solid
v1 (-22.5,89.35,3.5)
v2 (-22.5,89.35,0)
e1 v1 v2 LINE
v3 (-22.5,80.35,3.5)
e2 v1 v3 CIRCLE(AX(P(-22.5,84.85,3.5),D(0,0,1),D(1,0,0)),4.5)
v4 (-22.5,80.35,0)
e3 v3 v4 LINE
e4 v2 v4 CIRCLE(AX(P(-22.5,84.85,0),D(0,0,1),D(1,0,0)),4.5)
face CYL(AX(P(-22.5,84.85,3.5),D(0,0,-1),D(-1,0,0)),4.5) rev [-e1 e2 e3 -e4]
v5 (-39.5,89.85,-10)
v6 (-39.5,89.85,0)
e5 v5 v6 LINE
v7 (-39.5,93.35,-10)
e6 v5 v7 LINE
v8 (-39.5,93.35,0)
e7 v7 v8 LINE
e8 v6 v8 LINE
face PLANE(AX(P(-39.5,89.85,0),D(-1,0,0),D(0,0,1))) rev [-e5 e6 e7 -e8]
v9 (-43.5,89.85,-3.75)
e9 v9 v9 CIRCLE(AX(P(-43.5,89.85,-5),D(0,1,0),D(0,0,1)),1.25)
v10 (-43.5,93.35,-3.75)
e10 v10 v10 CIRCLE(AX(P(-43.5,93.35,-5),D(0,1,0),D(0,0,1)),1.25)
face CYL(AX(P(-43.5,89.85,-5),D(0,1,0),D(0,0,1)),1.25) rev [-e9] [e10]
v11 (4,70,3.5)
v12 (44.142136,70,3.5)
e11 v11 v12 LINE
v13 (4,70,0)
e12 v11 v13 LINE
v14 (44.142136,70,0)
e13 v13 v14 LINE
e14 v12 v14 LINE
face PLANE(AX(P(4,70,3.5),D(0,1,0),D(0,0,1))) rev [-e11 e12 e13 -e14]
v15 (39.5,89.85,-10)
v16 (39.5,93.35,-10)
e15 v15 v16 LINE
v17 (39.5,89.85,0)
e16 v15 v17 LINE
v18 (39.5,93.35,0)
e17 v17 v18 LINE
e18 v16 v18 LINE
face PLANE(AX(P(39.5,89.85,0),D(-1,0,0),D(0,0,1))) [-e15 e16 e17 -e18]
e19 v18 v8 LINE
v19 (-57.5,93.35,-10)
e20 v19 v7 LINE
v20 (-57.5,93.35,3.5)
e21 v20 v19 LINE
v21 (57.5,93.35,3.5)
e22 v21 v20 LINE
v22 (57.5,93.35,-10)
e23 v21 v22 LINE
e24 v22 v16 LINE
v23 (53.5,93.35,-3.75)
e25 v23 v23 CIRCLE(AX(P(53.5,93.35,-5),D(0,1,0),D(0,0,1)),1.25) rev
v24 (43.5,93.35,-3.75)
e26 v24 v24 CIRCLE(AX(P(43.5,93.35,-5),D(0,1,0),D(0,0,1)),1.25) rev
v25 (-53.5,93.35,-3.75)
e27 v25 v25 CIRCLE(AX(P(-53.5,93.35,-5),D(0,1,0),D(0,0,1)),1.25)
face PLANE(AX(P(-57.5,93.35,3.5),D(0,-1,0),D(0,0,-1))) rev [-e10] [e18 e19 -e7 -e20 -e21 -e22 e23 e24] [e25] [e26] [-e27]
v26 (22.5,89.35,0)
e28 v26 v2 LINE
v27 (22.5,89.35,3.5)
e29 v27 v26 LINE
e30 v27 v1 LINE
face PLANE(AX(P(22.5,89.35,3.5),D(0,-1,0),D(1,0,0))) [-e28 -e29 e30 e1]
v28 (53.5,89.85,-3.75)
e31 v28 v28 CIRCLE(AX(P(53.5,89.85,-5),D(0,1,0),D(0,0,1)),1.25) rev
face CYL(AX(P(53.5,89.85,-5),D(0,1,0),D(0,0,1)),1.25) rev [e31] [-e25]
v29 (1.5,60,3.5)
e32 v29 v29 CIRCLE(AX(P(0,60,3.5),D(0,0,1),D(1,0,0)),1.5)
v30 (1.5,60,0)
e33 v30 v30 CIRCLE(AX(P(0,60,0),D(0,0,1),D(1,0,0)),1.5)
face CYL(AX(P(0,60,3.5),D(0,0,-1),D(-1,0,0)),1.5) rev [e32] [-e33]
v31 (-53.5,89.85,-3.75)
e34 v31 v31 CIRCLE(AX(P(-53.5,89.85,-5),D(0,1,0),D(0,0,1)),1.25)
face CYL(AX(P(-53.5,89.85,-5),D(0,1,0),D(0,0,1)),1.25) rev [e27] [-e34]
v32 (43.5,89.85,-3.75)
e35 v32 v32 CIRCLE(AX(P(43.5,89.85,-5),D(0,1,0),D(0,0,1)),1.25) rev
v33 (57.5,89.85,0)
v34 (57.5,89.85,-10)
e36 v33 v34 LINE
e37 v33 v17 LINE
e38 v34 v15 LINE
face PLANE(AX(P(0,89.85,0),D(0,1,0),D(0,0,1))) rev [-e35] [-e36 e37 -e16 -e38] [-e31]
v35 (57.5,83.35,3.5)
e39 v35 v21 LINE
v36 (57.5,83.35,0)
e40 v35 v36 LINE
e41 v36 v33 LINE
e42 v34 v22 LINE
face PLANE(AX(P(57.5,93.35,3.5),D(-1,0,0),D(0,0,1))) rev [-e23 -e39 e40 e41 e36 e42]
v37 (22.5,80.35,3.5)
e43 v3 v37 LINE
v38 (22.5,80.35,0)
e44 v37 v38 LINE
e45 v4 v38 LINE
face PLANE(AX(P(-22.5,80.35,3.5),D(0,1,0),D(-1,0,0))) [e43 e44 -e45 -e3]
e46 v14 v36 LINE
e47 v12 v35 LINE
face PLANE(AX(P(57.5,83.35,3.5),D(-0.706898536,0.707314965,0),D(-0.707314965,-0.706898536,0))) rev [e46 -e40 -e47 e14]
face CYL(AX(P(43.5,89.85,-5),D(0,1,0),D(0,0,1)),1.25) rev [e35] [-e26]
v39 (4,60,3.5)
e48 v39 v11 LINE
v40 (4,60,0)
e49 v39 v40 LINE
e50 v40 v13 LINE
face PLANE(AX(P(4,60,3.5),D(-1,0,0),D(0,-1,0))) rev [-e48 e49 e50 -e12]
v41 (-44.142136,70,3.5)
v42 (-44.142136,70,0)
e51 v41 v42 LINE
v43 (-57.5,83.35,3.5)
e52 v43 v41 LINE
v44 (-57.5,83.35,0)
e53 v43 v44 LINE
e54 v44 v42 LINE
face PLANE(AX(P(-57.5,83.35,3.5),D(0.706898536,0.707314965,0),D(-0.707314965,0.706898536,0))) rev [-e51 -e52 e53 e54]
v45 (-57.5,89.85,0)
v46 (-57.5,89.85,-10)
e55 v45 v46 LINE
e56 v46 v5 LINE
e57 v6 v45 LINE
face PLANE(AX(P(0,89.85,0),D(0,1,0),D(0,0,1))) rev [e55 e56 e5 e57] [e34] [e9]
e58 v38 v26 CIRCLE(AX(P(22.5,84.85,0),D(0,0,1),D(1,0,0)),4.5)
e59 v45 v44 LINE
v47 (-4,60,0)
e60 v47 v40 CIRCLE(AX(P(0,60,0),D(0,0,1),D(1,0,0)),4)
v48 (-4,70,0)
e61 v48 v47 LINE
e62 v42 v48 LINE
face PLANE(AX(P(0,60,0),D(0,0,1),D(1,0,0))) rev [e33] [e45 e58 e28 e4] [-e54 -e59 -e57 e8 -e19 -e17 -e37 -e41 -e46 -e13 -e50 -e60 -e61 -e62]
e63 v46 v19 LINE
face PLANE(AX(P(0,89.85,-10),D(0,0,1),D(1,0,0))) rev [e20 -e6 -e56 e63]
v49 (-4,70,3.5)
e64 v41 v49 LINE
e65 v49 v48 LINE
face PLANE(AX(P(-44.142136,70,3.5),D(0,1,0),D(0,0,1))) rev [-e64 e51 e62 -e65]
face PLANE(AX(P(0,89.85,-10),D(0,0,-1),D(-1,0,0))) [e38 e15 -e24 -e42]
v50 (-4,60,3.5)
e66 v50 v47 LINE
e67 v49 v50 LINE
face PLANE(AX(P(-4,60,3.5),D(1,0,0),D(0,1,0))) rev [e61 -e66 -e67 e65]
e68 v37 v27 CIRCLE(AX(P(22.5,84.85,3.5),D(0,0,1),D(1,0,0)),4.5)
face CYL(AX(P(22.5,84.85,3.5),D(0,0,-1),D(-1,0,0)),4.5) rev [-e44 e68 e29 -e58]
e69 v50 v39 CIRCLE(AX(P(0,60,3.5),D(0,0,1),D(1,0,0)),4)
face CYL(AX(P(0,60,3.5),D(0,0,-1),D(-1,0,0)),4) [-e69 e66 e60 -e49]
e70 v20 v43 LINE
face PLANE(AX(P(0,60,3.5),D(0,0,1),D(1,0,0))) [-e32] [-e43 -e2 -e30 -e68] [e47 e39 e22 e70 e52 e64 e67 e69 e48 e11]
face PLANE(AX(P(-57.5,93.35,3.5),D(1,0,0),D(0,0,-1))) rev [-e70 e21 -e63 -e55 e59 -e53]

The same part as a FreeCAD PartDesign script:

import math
import FreeCAD as App
import Part
import Sketcher

V = App.Vector
Q = App.Units.Quantity

doc = App.newDocument("Part")
body = doc.addObject("PartDesign::Body", "Body")

# Sketch on XY plane
sketch1 = doc.addObject("Sketcher::SketchObject", "Sketch")
body.addObject(sketch1)
sketch1.AttachmentSupport = (doc.XY_Plane, [""])
sketch1.MapMode = "FlatFace"
sketch1.addGeometry(Part.LineSegment(V(-4, 70, 0), V(-4, 60, 0)), False)
sketch1.addGeometry(Part.ArcOfCircle(Part.Circle(V(0, 60, 0), V(0, 0, 1), 4), math.radians(180), math.radians(360)), False)
sketch1.addGeometry(Part.LineSegment(V(4, 60, 0), V(4, 70, 0)), False)
sketch1.addGeometry(Part.LineSegment(V(4, 70, 0), V(44.1, 70, 0)), False)
sketch1.addGeometry(Part.LineSegment(V(44.1, 70, 0), V(57.5, 83.3, 0)), False)
sketch1.addGeometry(Part.LineSegment(V(57.5, 83.3, 0), V(57.5, 93.3, 0)), False)
sketch1.addGeometry(Part.LineSegment(V(57.5, 93.3, 0), V(-57.5, 93.3, 0)), False)
sketch1.addGeometry(Part.LineSegment(V(-57.5, 93.3, 0), V(-57.5, 83.3, 0)), False)
sketch1.addGeometry(Part.LineSegment(V(-57.5, 83.3, 0), V(-44.1, 70, 0)), False)
sketch1.addGeometry(Part.LineSegment(V(-44.1, 70, 0), V(-4, 70, 0)), False)
sketch1.addGeometry(Part.Circle(V(0, 60, 0), V(0, 0, 1), 1.5), False)
sketch1.addGeometry(Part.ArcOfCircle(Part.Circle(V(22.5, 84.8, 0), V(0, 0, 1), 4.5), math.radians(-90), math.radians(90)), False)
sketch1.addGeometry(Part.LineSegment(V(22.5, 80.3, 0), V(-22.5, 80.3, 0)), False)
sketch1.addGeometry(Part.ArcOfCircle(Part.Circle(V(-22.5, 84.8, 0), V(0, 0, 1), 4.5), math.radians(90), math.radians(270)), False)
sketch1.addGeometry(Part.LineSegment(V(-22.5, 89.3, 0), V(22.5, 89.3, 0)), False)
sketch1.addConstraint(Sketcher.Constraint("Tangent", 0, 2, 1, 1))
sketch1.addConstraint(Sketcher.Constraint("Tangent", 1, 2, 2, 1))
sketch1.addConstraint(Sketcher.Constraint("Coincident", 2, 2, 3, 1))
sketch1.addConstraint(Sketcher.Constraint("Coincident", 3, 2, 4, 1))
sketch1.addConstraint(Sketcher.Constraint("Coincident", 4, 2, 5, 1))
sketch1.addConstraint(Sketcher.Constraint("Coincident", 5, 2, 6, 1))
sketch1.addConstraint(Sketcher.Constraint("Coincident", 6, 2, 7, 1))
sketch1.addConstraint(Sketcher.Constraint("Coincident", 7, 2, 8, 1))
sketch1.addConstraint(Sketcher.Constraint("Coincident", 8, 2, 9, 1))
sketch1.addConstraint(Sketcher.Constraint("Coincident", 9, 2, 0, 1))
sketch1.addConstraint(Sketcher.Constraint("Tangent", 11, 1, 12, 1))
sketch1.addConstraint(Sketcher.Constraint("Tangent", 12, 2, 13, 2))
sketch1.addConstraint(Sketcher.Constraint("Tangent", 13, 1, 14, 1))
sketch1.addConstraint(Sketcher.Constraint("Tangent", 14, 2, 11, 2))
sketch1.addConstraint(Sketcher.Constraint("Vertical", 0))
sketch1.addConstraint(Sketcher.Constraint("Vertical", 2))
sketch1.addConstraint(Sketcher.Constraint("Horizontal", 3))
sketch1.addConstraint(Sketcher.Constraint("Vertical", 5))
sketch1.addConstraint(Sketcher.Constraint("Horizontal", 6))
sketch1.addConstraint(Sketcher.Constraint("Vertical", 7))
sketch1.addConstraint(Sketcher.Constraint("Horizontal", 9))
sketch1.addConstraint(Sketcher.Constraint("Horizontal", 12))
sketch1.addConstraint(Sketcher.Constraint("Horizontal", 14))
sketch1.addConstraint(Sketcher.Constraint("Coincident", 10, 3, 1, 3))
sketch1.addConstraint(Sketcher.Constraint("Symmetric", 4, 2, 7, 2, -2))
sketch1.addConstraint(Sketcher.Constraint("Symmetric", 3, 2, 8, 2, -2))
sketch1.addConstraint(Sketcher.Constraint("PointOnObject", 1, 3, -2))
sketch1.addConstraint(Sketcher.Constraint("Equal", 2, 5))
sketch1.addConstraint(Sketcher.Constraint("Diameter", 10, Q("3 mm")))
sketch1.addConstraint(Sketcher.Constraint("Radius", 1, Q("4 mm")))
sketch1.addConstraint(Sketcher.Constraint("Radius", 11, Q("4.5 mm")))
sketch1.addConstraint(Sketcher.Constraint("DistanceX", 6, 2, 6, 1, Q("115 mm")))
sketch1.addConstraint(Sketcher.Constraint("DistanceX", 12, 2, 12, 1, Q("45 mm")))
sketch1.addConstraint(Sketcher.Constraint("DistanceY", 0, 2, 0, 1, Q("10 mm")))
sketch1.addConstraint(Sketcher.Constraint("DistanceY", -1, 1, 1, 3, Q("60 mm")))
sketch1.addConstraint(Sketcher.Constraint("DistanceX", 11, 3, 4, 2, Q("35 mm")))
sketch1.addConstraint(Sketcher.Constraint("DistanceY", 4, 2, 11, 3, Q("1.5 mm")))
sketch1.addConstraint(Sketcher.Constraint("DistanceY", -1, 1, 11, 3, Q("84.85 mm")))
sketch1.addConstraint(Sketcher.Constraint("DistanceX", 3, 1, 3, 2, Q("40.142136 mm")))
pad1 = doc.addObject("PartDesign::Pad", "Pad")
body.addObject(pad1)
pad1.Profile = sketch1
pad1.Length = 3.5

# Sketch on XZ plane
sketch2 = doc.addObject("Sketcher::SketchObject", "Sketch001")
body.addObject(sketch2)
sketch2.AttachmentSupport = (doc.XZ_Plane, [""])
sketch2.MapMode = "FlatFace"
sketch2.AttachmentOffset = App.Placement(V(0, 0, -93.35), App.Rotation())
sketch2.addGeometry(Part.LineSegment(V(-57.5, -10, 0), V(-57.5, 0, 0)), False)
sketch2.addGeometry(Part.LineSegment(V(-57.5, 0, 0), V(-39.5, 0, 0)), False)
sketch2.addGeometry(Part.LineSegment(V(-39.5, 0, 0), V(-39.5, -10, 0)), False)
sketch2.addGeometry(Part.LineSegment(V(-39.5, -10, 0), V(-57.5, -10, 0)), False)
sketch2.addGeometry(Part.Circle(V(-53.5, -5, 0), V(0, 0, 1), 1.2), False)
sketch2.addGeometry(Part.Circle(V(-43.5, -5, 0), V(0, 0, 1), 1.2), False)
sketch2.addGeometry(Part.LineSegment(V(39.5, -10, 0), V(39.5, 0, 0)), False)
sketch2.addGeometry(Part.LineSegment(V(39.5, 0, 0), V(57.5, 0, 0)), False)
sketch2.addGeometry(Part.LineSegment(V(57.5, 0, 0), V(57.5, -10, 0)), False)
sketch2.addGeometry(Part.LineSegment(V(57.5, -10, 0), V(39.5, -10, 0)), False)
sketch2.addGeometry(Part.Circle(V(43.5, -5, 0), V(0, 0, 1), 1.2), False)
sketch2.addGeometry(Part.Circle(V(53.5, -5, 0), V(0, 0, 1), 1.2), False)
sketch2.addConstraint(Sketcher.Constraint("Coincident", 0, 2, 1, 1))
sketch2.addConstraint(Sketcher.Constraint("Coincident", 1, 2, 2, 1))
sketch2.addConstraint(Sketcher.Constraint("Coincident", 2, 2, 3, 1))
sketch2.addConstraint(Sketcher.Constraint("Coincident", 3, 2, 0, 1))
sketch2.addConstraint(Sketcher.Constraint("Coincident", 6, 2, 7, 1))
sketch2.addConstraint(Sketcher.Constraint("Coincident", 7, 2, 8, 1))
sketch2.addConstraint(Sketcher.Constraint("Coincident", 8, 2, 9, 1))
sketch2.addConstraint(Sketcher.Constraint("Coincident", 9, 2, 6, 1))
sketch2.addConstraint(Sketcher.Constraint("Vertical", 0))
sketch2.addConstraint(Sketcher.Constraint("Horizontal", 1))
sketch2.addConstraint(Sketcher.Constraint("Vertical", 2))
sketch2.addConstraint(Sketcher.Constraint("Horizontal", 3))
sketch2.addConstraint(Sketcher.Constraint("Vertical", 6))
sketch2.addConstraint(Sketcher.Constraint("Horizontal", 7))
sketch2.addConstraint(Sketcher.Constraint("Vertical", 8))
sketch2.addConstraint(Sketcher.Constraint("Horizontal", 9))
sketch2.addConstraint(Sketcher.Constraint("Equal", 4, 5))
sketch2.addConstraint(Sketcher.Constraint("Equal", 5, 10))
sketch2.addConstraint(Sketcher.Constraint("Equal", 10, 11))
sketch2.addConstraint(Sketcher.Constraint("Symmetric", 1, 2, 6, 2, -1, 1))
sketch2.addConstraint(Sketcher.Constraint("Symmetric", 5, 3, 10, 3, -2))
sketch2.addConstraint(Sketcher.Constraint("Symmetric", 4, 3, 11, 3, -2))
sketch2.addConstraint(Sketcher.Constraint("Symmetric", 0, 2, 7, 2, -2))
sketch2.addConstraint(Sketcher.Constraint("Horizontal", 4, 3, 5, 3))
sketch2.addConstraint(Sketcher.Constraint("Horizontal", 3, 2, 8, 2))
sketch2.addConstraint(Sketcher.Constraint("Diameter", 4, Q("2.5 mm")))
sketch2.addConstraint(Sketcher.Constraint("DistanceX", 1, 1, 1, 2, Q("18 mm")))
sketch2.addConstraint(Sketcher.Constraint("DistanceY", 0, 1, 0, 2, Q("10 mm")))
sketch2.addConstraint(Sketcher.Constraint("DistanceY", 4, 3, -1, 1, Q("5 mm")))
sketch2.addConstraint(Sketcher.Constraint("DistanceX", 4, 3, 5, 3, Q("10 mm")))
sketch2.addConstraint(Sketcher.Constraint("DistanceX", 5, 3, 10, 3, Q("87 mm")))
sketch2.addConstraint(Sketcher.Constraint("DistanceX", 0, 2, 4, 3, Q("4 mm")))
pad2 = doc.addObject("PartDesign::Pad", "Pad001")
body.addObject(pad2)
pad2.Profile = sketch2
pad2.Length = 3.5

doc.recompute()
